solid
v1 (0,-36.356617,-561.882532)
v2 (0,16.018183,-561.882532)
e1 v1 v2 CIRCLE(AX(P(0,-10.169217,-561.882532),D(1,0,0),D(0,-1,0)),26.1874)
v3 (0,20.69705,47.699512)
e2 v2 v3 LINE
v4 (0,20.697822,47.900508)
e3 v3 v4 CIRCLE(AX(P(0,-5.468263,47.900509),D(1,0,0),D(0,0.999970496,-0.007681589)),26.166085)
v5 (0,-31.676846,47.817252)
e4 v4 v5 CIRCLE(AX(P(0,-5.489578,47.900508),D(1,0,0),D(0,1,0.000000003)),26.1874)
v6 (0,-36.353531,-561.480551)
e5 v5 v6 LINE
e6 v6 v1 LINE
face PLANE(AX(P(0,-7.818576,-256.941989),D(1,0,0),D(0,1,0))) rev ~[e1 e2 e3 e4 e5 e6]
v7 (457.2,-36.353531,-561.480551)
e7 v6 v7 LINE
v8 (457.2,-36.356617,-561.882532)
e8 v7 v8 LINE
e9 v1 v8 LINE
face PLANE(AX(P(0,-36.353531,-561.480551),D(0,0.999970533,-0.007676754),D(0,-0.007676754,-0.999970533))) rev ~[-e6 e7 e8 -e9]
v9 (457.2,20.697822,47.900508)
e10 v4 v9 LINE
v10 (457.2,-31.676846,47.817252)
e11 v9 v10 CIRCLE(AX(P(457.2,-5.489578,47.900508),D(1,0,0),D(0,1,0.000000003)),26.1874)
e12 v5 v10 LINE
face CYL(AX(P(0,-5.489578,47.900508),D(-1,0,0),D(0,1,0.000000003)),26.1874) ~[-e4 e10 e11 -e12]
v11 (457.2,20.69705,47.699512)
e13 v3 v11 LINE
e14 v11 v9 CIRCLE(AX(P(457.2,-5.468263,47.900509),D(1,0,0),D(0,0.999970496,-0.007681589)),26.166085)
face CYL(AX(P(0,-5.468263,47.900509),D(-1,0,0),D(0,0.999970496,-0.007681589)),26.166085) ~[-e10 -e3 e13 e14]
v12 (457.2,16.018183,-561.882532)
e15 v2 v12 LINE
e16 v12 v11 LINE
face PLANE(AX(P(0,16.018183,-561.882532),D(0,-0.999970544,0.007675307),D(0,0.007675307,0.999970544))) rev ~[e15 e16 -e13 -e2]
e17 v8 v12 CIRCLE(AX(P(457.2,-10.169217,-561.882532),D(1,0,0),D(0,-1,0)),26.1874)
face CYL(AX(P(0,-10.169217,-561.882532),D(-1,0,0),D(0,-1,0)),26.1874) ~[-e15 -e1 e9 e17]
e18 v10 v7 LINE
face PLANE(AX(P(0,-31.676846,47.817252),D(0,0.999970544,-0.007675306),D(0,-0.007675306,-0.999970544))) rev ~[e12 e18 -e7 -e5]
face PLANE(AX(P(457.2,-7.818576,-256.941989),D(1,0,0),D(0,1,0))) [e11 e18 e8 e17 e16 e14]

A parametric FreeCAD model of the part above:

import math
import FreeCAD as App
import Part
import Sketcher
from FreeCAD import Vector
Q = App.Units.Quantity

doc = App.newDocument("Part")
body = doc.addObject("PartDesign::Body", "Body")

sketch1 = body.newObject("Sketcher::SketchObject", "Sketch")
sketch1.AttachmentSupport = (doc.getObject("YZ_Plane"), [""])
sketch1.MapMode = "FlatFace"
sketch1.addGeometry([
    Part.LineSegment(Vector(-31.676846, 47.817252, 0), Vector(-36.353531, -561.480551, 0)),
    Part.LineSegment(Vector(-36.353531, -561.480551, 0), Vector(-36.356617, -561.882532, 0)),
    Part.ArcOfCircle(Part.Circle(Vector(-10.169217, -561.882532, 0), Vector(0, 0, 1), 26.1874), math.radians(180), math.radians(360)),
    Part.LineSegment(Vector(16.018183, -561.882532, 0), Vector(20.69705, 47.699512, 0)),
    Part.ArcOfCircle(Part.Circle(Vector(-5.468263, 47.900509, 0), Vector(0, 0, 1), 26.166085), math.radians(-0.440127), math.radians(-0.000002)),
    Part.ArcOfCircle(Part.Circle(Vector(-5.489578, 47.900508, 0), Vector(0, 0, 1), 26.1874), math.radians(0), math.radians(180.182157)),
], False)
sketch1.addConstraint([
    Sketcher.Constraint("Coincident", 0, 2, 1, 1),
    Sketcher.Constraint("Coincident", 1, 2, 2, 1),
    Sketcher.Constraint("Coincident", 2, 2, 3, 1),
    Sketcher.Constraint("Coincident", 3, 2, 4, 1),
    Sketcher.Constraint("Coincident", 4, 2, 5, 1),
    Sketcher.Constraint("Coincident", 5, 2, 0, 1),
    Sketcher.Constraint("Distance", 3, Q("24 in")),
    Sketcher.Constraint("Radius", 2, Q("1.031 in")),
    Sketcher.Constraint("Radius", 5, Q("1.031 in")),
    Sketcher.Constraint("Radius", 4, Q("26.166085 mm")),
    Sketcher.Constraint("Distance", 0, Q("609.315751 mm")),
    Sketcher.Constraint("DistanceY", 2, 3, -1, 1, Q("561.882532 mm")),
    Sketcher.Constraint("DistanceY", -1, 1, 4, 3, Q("47.900509 mm")),
    Sketcher.Constraint("DistanceX", 5, 3, -1, 1, Q("5.489578 mm")),
    Sketcher.Constraint("DistanceX", 0, 2, -1, 1, Q("36.353531 mm")),
    Sketcher.Constraint("DistanceY", 0, 2, -1, 1, Q("561.480551 mm")),
    Sketcher.Constraint("DistanceY", 1, 2, -1, 1, Q("561.882532 mm")),
    Sketcher.Constraint("DistanceY", 2, 2, -1, 1, Q("561.882532 mm")),
    Sketcher.Constraint("DistanceY", -1, 1, 4, 2, Q("47.900508 mm")),
    Sketcher.Constraint("DistanceX", 2, 3, 5, 3, Q("4.679639 mm")),
    Sketcher.Constraint("DistanceY", 2, 3, 5, 3, Q("609.78304 mm")),
])
pad1 = body.newObject("PartDesign::Pad", "Pad")
pad1.Profile = sketch1
pad1.Length = Q("18 in")

doc.recompute()
